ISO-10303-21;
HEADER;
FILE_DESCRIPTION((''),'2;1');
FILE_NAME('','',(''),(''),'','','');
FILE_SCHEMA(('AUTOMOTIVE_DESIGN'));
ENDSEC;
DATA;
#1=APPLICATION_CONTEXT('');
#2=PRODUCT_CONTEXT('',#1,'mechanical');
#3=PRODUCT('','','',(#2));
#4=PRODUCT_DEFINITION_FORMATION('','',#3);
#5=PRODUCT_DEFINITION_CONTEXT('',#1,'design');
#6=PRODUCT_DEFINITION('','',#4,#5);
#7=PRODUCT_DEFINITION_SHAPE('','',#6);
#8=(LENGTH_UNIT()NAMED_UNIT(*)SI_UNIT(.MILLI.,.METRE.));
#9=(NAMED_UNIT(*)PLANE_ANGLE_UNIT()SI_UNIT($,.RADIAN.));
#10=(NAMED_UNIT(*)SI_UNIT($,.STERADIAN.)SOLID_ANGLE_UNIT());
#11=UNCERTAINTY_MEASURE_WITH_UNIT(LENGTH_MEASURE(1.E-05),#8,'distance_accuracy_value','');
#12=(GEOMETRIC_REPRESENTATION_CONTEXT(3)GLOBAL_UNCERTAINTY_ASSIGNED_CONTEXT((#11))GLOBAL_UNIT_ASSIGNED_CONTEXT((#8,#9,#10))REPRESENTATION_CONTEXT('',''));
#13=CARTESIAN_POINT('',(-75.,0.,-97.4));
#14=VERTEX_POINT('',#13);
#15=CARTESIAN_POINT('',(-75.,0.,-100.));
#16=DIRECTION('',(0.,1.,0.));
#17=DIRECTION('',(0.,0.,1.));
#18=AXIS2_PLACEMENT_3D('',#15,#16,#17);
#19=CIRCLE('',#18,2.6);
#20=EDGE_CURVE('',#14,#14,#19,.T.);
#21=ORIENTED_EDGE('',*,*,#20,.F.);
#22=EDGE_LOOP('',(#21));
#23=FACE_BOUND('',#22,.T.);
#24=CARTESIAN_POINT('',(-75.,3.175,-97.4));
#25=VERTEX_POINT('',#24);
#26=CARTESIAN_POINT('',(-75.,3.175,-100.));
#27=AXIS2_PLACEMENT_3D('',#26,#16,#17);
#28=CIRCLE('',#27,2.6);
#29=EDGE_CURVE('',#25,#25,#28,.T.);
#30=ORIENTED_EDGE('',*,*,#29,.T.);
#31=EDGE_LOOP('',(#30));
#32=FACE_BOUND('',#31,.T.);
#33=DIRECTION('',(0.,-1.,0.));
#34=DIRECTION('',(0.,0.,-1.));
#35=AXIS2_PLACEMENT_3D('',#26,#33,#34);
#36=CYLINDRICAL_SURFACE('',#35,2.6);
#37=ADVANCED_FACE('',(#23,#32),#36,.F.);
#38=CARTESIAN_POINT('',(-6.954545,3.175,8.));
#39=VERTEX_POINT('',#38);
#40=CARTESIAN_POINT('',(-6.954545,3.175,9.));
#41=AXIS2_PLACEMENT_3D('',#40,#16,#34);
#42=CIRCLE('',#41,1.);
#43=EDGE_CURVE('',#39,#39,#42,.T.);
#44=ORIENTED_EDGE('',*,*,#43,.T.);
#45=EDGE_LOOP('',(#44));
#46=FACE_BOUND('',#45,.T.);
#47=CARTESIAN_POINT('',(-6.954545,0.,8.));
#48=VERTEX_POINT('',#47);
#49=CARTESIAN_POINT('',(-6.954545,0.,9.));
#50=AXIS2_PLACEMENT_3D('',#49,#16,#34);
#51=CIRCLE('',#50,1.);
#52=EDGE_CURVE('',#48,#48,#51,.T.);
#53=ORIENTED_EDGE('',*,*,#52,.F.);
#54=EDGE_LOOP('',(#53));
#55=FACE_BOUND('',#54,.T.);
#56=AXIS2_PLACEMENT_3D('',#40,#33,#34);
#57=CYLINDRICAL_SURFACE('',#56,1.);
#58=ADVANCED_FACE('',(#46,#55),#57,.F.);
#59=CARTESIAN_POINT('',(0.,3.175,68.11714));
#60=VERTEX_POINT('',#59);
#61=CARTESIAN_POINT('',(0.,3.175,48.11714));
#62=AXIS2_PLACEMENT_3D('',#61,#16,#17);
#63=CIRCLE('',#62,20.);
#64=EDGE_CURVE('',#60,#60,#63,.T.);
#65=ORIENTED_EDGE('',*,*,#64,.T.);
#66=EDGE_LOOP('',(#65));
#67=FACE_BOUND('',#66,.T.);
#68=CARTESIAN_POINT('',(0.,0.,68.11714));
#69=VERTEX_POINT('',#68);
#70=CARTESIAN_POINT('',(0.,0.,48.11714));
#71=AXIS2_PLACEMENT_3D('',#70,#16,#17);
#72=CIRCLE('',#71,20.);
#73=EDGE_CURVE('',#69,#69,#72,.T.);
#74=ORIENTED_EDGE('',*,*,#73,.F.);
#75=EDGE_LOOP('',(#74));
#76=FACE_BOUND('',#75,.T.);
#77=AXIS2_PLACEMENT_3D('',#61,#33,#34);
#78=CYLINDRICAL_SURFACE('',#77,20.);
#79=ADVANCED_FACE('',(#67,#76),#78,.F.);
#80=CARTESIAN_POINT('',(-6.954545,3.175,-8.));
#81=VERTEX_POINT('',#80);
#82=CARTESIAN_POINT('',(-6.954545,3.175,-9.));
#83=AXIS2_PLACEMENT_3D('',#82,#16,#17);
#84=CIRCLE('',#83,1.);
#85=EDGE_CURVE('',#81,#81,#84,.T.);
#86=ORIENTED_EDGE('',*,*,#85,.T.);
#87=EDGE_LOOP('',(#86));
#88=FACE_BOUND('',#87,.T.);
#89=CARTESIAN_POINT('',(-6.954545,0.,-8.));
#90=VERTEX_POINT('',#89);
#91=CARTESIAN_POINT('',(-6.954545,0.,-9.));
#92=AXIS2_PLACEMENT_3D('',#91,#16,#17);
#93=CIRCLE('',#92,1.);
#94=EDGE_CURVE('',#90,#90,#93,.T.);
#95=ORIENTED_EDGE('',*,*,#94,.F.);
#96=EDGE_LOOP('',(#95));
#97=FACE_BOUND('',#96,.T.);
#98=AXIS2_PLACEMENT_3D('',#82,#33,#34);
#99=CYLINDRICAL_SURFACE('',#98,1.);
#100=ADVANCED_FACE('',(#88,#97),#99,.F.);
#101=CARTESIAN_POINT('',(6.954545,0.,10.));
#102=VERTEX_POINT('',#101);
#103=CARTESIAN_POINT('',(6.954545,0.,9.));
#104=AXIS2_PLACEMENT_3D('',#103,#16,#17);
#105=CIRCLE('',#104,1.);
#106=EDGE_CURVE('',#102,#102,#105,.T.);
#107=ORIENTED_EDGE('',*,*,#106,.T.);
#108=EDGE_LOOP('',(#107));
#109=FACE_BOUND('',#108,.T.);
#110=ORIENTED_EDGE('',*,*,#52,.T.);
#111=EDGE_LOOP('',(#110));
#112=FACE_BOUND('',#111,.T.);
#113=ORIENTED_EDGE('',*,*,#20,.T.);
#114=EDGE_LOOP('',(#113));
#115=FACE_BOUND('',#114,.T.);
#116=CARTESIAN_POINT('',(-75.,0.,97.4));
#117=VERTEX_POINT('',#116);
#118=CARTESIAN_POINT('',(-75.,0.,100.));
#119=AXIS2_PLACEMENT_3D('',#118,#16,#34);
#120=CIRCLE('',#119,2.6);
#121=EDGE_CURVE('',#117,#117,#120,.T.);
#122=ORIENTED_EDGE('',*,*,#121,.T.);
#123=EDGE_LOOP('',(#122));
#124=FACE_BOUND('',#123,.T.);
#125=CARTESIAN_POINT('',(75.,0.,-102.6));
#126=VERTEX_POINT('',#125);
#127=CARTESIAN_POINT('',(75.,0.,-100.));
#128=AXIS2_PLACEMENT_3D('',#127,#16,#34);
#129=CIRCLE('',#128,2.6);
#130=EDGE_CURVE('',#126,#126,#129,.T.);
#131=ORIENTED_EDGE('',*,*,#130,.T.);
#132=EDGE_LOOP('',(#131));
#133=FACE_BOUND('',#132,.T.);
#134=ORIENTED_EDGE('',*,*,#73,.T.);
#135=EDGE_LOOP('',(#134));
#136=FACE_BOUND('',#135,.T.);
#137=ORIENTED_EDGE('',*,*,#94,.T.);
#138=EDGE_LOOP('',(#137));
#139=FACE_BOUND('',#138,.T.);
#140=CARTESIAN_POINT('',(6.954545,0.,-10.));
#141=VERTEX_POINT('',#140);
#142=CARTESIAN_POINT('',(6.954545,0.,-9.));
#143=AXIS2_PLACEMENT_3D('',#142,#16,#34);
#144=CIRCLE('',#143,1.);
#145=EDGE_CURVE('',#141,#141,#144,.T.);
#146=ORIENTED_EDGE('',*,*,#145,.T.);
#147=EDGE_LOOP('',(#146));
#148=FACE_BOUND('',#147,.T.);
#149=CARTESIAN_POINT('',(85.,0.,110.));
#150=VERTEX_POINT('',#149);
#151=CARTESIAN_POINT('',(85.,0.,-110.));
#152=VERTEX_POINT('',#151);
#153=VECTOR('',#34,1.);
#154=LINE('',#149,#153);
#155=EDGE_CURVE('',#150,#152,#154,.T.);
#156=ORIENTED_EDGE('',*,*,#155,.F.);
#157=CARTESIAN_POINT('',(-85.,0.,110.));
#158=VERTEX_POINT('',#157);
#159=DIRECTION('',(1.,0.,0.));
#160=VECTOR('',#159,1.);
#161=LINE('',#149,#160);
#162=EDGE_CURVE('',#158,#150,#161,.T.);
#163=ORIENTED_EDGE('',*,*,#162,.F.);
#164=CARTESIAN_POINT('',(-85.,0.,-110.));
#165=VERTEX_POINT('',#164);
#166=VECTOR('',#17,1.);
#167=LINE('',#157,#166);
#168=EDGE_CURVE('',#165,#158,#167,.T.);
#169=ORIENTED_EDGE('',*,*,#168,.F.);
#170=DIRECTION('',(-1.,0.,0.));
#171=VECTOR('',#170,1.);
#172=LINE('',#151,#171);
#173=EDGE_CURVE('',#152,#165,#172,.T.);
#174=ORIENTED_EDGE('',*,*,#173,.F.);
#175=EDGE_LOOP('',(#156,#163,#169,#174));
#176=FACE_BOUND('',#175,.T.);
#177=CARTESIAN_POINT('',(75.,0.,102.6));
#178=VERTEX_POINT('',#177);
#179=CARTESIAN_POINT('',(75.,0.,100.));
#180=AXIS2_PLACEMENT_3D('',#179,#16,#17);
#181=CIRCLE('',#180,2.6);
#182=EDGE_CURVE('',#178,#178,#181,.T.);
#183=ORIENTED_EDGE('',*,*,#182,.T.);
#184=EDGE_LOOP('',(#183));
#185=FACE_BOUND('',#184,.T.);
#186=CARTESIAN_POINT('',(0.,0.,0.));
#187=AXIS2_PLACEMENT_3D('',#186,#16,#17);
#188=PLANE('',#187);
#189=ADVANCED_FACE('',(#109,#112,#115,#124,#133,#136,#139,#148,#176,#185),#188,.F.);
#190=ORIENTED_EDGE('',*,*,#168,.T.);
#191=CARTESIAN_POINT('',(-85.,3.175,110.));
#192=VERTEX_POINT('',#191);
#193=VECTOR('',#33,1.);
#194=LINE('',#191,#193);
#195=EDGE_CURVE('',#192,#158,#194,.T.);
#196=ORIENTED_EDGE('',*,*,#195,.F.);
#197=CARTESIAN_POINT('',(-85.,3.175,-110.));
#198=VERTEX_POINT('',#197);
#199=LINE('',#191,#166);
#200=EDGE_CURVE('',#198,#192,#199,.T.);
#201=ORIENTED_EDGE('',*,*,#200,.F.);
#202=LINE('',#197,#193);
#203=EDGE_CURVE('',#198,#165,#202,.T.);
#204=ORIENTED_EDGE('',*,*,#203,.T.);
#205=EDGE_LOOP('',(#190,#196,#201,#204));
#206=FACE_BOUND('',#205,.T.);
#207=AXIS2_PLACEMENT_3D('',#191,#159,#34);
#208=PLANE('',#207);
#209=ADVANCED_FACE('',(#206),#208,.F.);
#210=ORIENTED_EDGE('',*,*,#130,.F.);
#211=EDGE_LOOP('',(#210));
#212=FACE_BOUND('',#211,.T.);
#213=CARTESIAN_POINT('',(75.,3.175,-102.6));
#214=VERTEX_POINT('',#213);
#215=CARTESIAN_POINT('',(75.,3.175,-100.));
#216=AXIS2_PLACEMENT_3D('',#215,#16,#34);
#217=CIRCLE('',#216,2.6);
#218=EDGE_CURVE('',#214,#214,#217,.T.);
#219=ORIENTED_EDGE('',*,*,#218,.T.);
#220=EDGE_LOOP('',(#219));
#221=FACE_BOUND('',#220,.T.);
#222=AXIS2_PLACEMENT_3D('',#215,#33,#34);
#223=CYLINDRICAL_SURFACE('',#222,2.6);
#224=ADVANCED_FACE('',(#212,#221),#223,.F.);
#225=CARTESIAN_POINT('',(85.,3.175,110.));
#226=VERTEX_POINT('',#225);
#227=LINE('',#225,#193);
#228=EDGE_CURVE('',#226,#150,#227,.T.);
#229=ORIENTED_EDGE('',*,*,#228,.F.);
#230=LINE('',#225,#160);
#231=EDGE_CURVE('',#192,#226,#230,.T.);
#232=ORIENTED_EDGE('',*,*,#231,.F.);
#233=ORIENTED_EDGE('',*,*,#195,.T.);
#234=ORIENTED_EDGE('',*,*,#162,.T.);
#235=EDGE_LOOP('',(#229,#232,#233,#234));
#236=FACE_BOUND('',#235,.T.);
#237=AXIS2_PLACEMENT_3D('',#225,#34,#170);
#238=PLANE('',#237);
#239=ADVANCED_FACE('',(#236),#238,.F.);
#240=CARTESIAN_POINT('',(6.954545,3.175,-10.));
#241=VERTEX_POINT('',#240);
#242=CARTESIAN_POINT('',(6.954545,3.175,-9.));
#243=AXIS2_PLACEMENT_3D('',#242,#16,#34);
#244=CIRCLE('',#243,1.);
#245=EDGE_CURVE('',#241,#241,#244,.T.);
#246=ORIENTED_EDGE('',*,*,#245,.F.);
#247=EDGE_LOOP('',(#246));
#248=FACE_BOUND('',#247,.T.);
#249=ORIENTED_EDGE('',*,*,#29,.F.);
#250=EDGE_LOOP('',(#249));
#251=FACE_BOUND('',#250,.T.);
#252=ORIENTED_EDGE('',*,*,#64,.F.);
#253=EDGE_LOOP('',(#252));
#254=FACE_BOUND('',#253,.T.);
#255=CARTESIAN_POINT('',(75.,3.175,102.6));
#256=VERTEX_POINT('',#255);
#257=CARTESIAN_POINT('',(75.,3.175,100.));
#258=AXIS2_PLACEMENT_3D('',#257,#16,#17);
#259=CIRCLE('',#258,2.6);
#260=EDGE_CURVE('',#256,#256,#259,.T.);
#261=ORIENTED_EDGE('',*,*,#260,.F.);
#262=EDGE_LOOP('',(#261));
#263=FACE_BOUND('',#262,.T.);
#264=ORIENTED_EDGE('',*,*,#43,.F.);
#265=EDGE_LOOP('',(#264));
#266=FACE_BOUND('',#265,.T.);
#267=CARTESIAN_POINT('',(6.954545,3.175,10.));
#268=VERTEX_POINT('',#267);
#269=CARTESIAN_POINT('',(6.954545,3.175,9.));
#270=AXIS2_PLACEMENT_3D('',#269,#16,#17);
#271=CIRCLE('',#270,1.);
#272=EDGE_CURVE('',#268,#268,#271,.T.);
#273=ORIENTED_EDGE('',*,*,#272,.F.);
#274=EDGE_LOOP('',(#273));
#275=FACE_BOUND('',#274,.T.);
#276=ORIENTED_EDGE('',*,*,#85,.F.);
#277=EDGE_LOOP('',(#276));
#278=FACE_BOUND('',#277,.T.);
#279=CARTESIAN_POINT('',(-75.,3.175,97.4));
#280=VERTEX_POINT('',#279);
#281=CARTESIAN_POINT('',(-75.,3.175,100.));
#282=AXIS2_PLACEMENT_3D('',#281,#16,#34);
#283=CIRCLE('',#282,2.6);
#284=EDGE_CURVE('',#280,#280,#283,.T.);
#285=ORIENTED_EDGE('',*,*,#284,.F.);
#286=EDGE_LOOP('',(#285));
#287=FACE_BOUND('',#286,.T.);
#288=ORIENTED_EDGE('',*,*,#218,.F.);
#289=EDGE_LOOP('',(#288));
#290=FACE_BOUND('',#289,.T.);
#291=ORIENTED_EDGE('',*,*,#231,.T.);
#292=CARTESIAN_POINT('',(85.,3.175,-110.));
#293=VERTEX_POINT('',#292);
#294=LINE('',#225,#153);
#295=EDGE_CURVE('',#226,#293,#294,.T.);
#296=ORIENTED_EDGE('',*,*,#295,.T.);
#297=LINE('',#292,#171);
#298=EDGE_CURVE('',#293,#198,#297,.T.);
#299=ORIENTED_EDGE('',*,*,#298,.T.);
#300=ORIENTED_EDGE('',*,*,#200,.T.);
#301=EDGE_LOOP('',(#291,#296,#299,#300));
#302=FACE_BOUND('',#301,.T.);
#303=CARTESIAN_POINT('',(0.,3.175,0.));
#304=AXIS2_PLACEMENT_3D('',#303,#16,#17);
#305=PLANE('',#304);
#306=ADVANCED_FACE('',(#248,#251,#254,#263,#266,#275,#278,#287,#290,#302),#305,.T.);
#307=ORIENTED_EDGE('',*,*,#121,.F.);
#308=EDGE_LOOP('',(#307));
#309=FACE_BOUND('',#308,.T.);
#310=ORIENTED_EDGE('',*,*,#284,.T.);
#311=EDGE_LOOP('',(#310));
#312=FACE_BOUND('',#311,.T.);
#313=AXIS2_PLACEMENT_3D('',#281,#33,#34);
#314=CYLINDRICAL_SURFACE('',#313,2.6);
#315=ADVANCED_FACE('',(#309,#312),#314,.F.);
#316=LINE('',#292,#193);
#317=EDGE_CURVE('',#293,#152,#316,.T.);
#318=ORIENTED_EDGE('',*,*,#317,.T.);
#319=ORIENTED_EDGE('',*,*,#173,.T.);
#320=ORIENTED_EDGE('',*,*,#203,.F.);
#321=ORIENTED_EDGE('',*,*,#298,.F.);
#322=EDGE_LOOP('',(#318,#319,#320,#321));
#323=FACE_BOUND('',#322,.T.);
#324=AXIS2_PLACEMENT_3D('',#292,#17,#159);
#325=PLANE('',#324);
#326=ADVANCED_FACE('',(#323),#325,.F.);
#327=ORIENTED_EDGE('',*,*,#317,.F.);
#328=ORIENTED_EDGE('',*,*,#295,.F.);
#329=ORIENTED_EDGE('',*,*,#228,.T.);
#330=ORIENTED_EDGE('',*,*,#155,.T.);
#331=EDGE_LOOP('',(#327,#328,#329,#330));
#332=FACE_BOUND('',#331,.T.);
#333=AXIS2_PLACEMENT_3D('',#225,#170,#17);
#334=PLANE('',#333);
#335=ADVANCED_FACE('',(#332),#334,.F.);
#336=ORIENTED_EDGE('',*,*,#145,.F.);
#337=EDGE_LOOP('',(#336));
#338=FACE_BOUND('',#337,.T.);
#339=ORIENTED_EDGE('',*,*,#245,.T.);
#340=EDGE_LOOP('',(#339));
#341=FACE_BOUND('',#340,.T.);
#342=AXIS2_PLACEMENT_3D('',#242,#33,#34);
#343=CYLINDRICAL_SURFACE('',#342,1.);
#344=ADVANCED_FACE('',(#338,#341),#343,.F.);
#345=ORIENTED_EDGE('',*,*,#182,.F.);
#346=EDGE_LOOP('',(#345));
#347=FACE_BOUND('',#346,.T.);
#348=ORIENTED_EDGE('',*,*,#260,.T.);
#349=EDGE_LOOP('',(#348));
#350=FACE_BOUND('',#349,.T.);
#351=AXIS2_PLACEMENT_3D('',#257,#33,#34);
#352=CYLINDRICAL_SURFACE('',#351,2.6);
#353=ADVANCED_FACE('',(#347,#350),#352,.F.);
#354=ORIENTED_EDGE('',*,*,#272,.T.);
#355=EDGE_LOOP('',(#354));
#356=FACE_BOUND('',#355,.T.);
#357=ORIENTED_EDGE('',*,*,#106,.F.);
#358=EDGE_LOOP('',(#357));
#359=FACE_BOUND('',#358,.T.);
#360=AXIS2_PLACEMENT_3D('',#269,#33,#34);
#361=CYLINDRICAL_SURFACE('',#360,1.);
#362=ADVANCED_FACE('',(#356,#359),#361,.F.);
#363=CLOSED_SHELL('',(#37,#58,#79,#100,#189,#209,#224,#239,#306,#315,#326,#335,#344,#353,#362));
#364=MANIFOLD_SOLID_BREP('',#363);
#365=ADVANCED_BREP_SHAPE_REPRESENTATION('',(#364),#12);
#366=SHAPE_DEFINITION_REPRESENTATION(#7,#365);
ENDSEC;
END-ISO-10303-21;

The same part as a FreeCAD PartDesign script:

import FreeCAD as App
import Part
import Sketcher
from FreeCAD import Vector
Q = App.Units.Quantity

doc = App.newDocument("Part")
params = doc.addObject("Spreadsheet::Sheet", "Params")
for row, (alias, value) in enumerate([
    ("sketch1_diameter", "2 mm"),
    ("sketch1_diameter2", "40 mm"),
    ("sketch1_diameter3", "5.2 mm"),
    ("sketch1_width", "170 mm"),
    ("sketch1_height", "220 mm"),
    ("pad1_length", "3.175 mm"),
], start=1):
    params.set(f"A{row}", alias)
    params.set(f"B{row}", "=" + value)
    params.setAlias(f"B{row}", alias)

body = doc.addObject("PartDesign::Body", "Body")

# Sketch on XZ plane
sketch1 = body.newObject("Sketcher::SketchObject", "Sketch")
sketch1.AttachmentSupport = (doc.getObject("XZ_Plane"), [""])
sketch1.MapMode = "FlatFace"
sketch1.addGeometry([
    Part.LineSegment(Vector(-85, -110, 0), Vector(-85, 110, 0)),  # 0
    Part.LineSegment(Vector(-85, 110, 0), Vector(85, 110, 0)),  # 1
    Part.LineSegment(Vector(85, 110, 0), Vector(85, -110, 0)),  # 2
    Part.LineSegment(Vector(85, -110, 0), Vector(-85, -110, 0)),  # 3
    Part.Circle(Vector(-75, 100, 0), Vector(0, 0, 1), 2.6),  # 4
    Part.Circle(Vector(-7, 9, 0), Vector(0, 0, 1), 1),  # 5
    Part.Circle(Vector(75, 100, 0), Vector(0, 0, 1), 2.6),  # 6
    Part.Circle(Vector(0, 48.1, 0), Vector(0, 0, 1), 20),  # 7
    Part.Circle(Vector(7, 9, 0), Vector(0, 0, 1), 1),  # 8
    Part.Circle(Vector(-7, -9, 0), Vector(0, 0, 1), 1),  # 9
    Part.Circle(Vector(-75, -100, 0), Vector(0, 0, 1), 2.6),  # 10
    Part.Circle(Vector(7, -9, 0), Vector(0, 0, 1), 1),  # 11
    Part.Circle(Vector(75, -100, 0), Vector(0, 0, 1), 2.6),  # 12
], False)
sketch1.addConstraint([
    Sketcher.Constraint("Coincident", 0, 2, 1, 1),
    Sketcher.Constraint("Coincident", 1, 2, 2, 1),
    Sketcher.Constraint("Coincident", 2, 2, 3, 1),
    Sketcher.Constraint("Coincident", 3, 2, 0, 1),
    Sketcher.Constraint("Vertical", 0),
    Sketcher.Constraint("Horizontal", 1),
    Sketcher.Constraint("Vertical", 2),
    Sketcher.Constraint("Horizontal", 3),
    Sketcher.Constraint("Equal", 4, 6),
    Sketcher.Constraint("Equal", 5, 8),
    Sketcher.Constraint("Equal", 8, 9),
    Sketcher.Constraint("Equal", 6, 10),
    Sketcher.Constraint("Equal", 9, 11),
    Sketcher.Constraint("Equal", 10, 12),
    Sketcher.Constraint("Symmetric", 8, 3, 9, 3, -1, 1),
    Sketcher.Constraint("Symmetric", 6, 3, 10, 3, -1, 1),
    Sketcher.Constraint("Symmetric", 5, 3, 11, 3, -1, 1),
    Sketcher.Constraint("Symmetric", 4, 3, 12, 3, -1, 1),
    Sketcher.Constraint("Symmetric", 0, 2, 2, 2, -1, 1),
    Sketcher.Constraint("Symmetric", 4, 3, 6, 3, -2),
    Sketcher.Constraint("Symmetric", 5, 3, 8, 3, -2),
    Sketcher.Constraint("PointOnObject", 7, 3, -2),
    Sketcher.Constraint("Diameter", 5, Q("2 mm")),
    Sketcher.Constraint("Diameter", 7, Q("40 mm")),
    Sketcher.Constraint("Diameter", 4, Q("5.2 mm")),
    Sketcher.Constraint("DistanceX", 1, 1, 1, 2, Q("170 mm")),
    Sketcher.Constraint("DistanceY", 0, 1, 0, 2, Q("220 mm")),
    Sketcher.Constraint("DistanceX", 4, 3, -1, 1, Q("75 mm")),
    Sketcher.Constraint("DistanceY", -1, 1, 4, 3, Q("100 mm")),
    Sketcher.Constraint("DistanceY", -1, 1, 5, 3, Q("9 mm")),
    Sketcher.Constraint("DistanceY", -1, 1, 7, 3, Q("48.11714 mm")),
    Sketcher.Constraint("DistanceX", 5, 3, 8, 3, Q("13.909091 mm")),
])
sketch1.setExpression("Constraints[22]", "Params.sketch1_diameter")
sketch1.setExpression("Constraints[23]", "Params.sketch1_diameter2")
sketch1.setExpression("Constraints[24]", "Params.sketch1_diameter3")
sketch1.setExpression("Constraints[25]", "Params.sketch1_width")
sketch1.setExpression("Constraints[26]", "Params.sketch1_height")
pad1 = body.newObject("PartDesign::Pad", "Pad")
pad1.Profile = sketch1
pad1.setExpression("Length", "Params.pad1_length")
pad1.Reversed = True

doc.recompute()
